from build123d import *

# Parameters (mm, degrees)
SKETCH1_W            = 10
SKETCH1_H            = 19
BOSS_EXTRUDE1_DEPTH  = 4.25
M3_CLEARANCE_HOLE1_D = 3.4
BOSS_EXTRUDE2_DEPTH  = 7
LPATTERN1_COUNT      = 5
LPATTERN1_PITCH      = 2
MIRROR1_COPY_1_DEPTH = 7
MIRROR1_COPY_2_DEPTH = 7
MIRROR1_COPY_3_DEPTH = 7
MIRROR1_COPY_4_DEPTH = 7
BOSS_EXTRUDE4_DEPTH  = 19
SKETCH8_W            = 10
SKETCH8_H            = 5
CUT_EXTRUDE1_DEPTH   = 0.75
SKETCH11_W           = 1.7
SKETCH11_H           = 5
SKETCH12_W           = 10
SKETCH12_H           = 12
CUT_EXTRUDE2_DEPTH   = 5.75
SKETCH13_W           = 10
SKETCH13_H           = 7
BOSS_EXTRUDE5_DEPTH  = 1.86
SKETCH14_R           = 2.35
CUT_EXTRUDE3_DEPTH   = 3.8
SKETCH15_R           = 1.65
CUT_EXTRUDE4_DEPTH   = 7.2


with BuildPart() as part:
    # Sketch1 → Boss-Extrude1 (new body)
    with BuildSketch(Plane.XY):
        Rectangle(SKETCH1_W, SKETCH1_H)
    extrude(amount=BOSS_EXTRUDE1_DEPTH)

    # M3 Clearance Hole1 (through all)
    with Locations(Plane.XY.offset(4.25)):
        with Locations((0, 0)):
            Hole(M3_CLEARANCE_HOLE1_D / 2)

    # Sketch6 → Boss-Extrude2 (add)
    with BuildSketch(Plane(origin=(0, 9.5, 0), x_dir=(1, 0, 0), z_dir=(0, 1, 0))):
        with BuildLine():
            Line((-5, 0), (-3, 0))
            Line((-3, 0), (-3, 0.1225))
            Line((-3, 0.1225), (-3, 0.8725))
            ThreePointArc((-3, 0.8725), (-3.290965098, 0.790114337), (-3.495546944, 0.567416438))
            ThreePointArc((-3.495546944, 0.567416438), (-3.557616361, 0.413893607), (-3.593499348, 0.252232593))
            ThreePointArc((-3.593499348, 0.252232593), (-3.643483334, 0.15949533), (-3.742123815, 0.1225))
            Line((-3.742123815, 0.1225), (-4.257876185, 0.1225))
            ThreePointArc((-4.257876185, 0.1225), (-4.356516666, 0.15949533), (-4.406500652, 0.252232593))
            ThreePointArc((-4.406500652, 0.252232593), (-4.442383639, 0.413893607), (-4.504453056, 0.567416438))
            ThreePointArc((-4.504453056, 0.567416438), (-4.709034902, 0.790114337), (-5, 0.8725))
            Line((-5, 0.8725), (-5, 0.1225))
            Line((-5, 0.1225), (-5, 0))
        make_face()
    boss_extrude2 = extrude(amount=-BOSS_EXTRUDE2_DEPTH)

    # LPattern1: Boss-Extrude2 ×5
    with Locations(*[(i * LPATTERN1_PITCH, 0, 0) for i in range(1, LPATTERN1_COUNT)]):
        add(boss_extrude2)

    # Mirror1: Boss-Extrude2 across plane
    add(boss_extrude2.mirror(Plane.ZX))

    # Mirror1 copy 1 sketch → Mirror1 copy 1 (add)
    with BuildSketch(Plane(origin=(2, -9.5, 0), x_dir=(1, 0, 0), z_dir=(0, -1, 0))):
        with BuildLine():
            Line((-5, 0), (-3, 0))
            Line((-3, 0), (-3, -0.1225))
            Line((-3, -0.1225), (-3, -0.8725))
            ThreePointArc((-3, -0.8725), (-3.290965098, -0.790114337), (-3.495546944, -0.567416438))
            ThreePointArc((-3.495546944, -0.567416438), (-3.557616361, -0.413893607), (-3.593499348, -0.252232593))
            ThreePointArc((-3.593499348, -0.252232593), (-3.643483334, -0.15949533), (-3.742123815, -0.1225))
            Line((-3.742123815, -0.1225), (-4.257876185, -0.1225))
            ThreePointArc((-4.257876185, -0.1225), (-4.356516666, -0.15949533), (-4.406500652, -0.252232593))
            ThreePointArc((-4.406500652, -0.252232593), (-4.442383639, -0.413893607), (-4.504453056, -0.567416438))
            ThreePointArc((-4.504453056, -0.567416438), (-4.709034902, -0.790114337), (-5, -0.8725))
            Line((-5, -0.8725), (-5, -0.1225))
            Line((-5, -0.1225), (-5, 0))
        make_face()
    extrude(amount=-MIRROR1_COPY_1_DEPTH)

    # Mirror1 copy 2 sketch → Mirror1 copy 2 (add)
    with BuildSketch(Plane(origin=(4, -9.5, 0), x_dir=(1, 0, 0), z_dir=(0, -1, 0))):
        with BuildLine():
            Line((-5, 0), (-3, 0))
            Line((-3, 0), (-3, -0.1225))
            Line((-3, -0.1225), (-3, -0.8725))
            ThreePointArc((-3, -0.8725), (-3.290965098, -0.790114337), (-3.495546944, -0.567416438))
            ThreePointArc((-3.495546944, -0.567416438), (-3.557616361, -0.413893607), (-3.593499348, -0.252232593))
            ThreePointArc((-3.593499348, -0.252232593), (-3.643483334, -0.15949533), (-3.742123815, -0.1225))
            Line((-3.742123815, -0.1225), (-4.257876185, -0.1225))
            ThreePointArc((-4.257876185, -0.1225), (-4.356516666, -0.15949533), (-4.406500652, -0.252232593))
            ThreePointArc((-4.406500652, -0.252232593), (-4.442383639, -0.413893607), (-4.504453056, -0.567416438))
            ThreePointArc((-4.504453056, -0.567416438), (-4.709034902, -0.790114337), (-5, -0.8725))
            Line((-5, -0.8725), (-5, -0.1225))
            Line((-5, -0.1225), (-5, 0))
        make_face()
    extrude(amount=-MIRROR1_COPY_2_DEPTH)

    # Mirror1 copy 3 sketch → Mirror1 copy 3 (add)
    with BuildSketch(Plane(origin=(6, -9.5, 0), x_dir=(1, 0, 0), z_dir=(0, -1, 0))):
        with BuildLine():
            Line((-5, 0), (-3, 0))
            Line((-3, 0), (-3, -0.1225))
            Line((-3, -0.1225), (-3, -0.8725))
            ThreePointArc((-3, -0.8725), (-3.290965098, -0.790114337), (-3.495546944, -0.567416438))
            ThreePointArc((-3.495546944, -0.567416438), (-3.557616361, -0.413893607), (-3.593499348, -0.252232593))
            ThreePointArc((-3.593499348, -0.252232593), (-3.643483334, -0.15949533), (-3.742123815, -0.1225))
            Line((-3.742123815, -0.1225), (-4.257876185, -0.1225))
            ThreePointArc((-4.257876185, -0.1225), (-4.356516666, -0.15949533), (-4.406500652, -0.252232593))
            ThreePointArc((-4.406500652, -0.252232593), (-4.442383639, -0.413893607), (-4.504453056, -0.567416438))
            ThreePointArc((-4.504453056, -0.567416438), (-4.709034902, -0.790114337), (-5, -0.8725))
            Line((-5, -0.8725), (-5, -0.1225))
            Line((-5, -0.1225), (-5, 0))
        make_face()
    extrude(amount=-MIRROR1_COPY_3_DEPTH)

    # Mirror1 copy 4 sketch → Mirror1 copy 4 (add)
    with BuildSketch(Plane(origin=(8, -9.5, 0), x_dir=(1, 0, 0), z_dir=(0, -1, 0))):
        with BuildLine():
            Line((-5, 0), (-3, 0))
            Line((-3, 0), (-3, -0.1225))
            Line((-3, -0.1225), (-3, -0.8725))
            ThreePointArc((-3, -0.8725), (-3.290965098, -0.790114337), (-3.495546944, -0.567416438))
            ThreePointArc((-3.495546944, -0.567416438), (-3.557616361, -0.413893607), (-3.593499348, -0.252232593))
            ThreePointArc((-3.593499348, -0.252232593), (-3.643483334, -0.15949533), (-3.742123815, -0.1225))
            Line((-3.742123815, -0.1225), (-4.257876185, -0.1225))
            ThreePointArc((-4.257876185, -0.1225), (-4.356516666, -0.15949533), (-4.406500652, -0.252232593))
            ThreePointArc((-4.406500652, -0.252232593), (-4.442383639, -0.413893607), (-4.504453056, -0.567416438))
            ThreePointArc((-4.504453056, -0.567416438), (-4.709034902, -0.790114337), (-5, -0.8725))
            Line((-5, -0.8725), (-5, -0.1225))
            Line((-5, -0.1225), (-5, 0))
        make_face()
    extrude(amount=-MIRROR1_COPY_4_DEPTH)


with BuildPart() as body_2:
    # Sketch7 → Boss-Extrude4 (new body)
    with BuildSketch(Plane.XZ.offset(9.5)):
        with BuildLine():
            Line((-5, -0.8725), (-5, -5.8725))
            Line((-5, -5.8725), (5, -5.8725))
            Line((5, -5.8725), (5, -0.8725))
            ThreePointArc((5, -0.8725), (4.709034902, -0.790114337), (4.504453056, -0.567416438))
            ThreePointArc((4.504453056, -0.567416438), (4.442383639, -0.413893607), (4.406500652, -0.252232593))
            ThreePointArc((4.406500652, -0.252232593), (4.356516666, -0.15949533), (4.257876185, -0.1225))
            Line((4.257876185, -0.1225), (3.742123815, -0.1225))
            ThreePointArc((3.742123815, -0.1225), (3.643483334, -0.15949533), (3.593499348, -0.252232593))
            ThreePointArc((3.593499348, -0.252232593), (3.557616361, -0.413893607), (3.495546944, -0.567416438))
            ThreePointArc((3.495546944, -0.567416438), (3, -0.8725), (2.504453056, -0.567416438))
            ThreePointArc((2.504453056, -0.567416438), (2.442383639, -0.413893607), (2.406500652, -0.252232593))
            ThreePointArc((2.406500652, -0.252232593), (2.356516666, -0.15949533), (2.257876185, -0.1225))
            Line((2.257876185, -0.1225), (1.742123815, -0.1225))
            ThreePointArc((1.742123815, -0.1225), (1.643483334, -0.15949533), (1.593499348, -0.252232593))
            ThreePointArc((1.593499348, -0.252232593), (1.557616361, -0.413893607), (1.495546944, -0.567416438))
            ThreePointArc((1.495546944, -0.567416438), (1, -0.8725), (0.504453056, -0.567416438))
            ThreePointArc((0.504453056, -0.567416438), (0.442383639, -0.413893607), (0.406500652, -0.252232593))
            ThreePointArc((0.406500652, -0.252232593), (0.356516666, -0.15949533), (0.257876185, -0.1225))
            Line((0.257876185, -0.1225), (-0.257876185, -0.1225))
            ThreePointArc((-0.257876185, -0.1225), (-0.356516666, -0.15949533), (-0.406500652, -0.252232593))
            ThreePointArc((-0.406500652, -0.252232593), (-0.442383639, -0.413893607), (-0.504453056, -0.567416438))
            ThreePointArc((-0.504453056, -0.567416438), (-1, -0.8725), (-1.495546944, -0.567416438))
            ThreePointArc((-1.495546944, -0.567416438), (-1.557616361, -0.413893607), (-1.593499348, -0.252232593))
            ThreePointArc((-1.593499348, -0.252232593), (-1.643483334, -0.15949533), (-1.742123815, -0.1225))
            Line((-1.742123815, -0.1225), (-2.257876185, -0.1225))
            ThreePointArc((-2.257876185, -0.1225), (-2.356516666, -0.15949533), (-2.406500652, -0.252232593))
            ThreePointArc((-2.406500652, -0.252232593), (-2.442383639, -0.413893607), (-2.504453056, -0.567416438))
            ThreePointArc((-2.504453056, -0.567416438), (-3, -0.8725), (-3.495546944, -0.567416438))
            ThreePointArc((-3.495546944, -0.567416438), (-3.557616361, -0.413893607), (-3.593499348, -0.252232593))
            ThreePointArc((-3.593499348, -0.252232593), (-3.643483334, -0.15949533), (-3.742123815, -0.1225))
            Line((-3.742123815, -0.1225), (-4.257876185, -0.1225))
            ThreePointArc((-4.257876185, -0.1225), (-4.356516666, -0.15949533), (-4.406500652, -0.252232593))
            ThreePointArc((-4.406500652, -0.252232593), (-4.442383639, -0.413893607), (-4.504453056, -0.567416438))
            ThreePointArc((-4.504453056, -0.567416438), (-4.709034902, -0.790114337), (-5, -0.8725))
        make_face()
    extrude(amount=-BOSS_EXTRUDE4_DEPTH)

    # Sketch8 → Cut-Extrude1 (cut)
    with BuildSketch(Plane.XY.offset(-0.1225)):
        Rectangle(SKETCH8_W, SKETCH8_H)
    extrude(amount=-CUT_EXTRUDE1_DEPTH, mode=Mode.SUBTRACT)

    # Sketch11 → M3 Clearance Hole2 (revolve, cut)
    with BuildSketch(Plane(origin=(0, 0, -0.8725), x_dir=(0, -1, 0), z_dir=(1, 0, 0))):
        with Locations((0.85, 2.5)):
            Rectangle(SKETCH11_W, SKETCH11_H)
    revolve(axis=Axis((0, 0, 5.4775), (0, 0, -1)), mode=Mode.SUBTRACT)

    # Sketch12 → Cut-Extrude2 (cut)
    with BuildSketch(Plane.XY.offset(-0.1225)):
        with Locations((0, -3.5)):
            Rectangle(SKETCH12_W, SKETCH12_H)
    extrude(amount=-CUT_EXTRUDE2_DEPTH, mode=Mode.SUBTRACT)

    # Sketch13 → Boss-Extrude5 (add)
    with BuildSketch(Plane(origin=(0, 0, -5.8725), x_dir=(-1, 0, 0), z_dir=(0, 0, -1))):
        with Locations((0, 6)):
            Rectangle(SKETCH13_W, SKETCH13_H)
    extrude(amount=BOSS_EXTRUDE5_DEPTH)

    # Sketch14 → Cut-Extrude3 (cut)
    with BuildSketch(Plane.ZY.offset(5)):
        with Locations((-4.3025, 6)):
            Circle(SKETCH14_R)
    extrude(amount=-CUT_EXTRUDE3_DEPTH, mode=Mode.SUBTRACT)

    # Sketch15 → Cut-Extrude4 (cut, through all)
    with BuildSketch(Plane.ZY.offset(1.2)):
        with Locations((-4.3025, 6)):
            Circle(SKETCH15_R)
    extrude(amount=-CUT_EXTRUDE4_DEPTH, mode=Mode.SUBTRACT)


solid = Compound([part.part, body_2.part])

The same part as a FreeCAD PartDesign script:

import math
import FreeCAD as App
import Part
import Sketcher
from FreeCAD import Vector


def add_polygon(sketch, points):
    """Adds a closed chain of lines whose ends are joined by coincident constraints."""
    first, n = sketch.GeometryCount, len(points)
    for a, b in zip(points, points[1:] + points[:1]):
        sketch.addGeometry(Part.LineSegment(App.Vector(*a, 0), App.Vector(*b, 0)), False)
    for i in range(n):
        sketch.addConstraint(Sketcher.Constraint("Coincident", first + i, 2, first + (i + 1) % n, 1))

doc = App.newDocument("Part")
body = doc.addObject("PartDesign::Body", "Body")

# Sketch on XY plane
sketch1 = body.newObject("Sketcher::SketchObject", "Sketch")
sketch1.AttachmentSupport = (doc.getObject("XY_Plane"), [""])
sketch1.MapMode = "FlatFace"
add_polygon(sketch1, [(-5, 10), (-5, -10), (5, -10), (5, 10)])  # lines 0-3
sketch1.addConstraint([
    Sketcher.Constraint("Vertical", 0),
    Sketcher.Constraint("Horizontal", 1),
    Sketcher.Constraint("Vertical", 2),
    Sketcher.Constraint("Horizontal", 3),
    Sketcher.Constraint("Symmetric", 0, 2, 2, 2, -1, 1),
    Sketcher.Constraint("DistanceX", 1, 1, 1, 2, 10.0),
    Sketcher.Constraint("DistanceY", 0, 2, 0, 1, 19.0),
])
pad1 = body.newObject("PartDesign::Pad", "Pad")
pad1.Profile = sketch1
pad1.Length = 4.25

# Sketch on XY plane
sketch2 = body.newObject("Sketcher::SketchObject", "Sketch001")
sketch2.AttachmentSupport = (doc.getObject("XY_Plane"), [""])
sketch2.MapMode = "FlatFace"
sketch2.AttachmentOffset = App.Placement(Vector(0, 0, 4.25), App.Rotation())
sketch2.addGeometry(Part.Circle(Vector(0, 0, 0), Vector(0, 0, 1), 1.7), False)
sketch2.addConstraint([
    Sketcher.Constraint("Coincident", 0, 3, -1, 1),
    Sketcher.Constraint("Diameter", 0, 3.4),
])
doc.recompute()
hole = body.newObject("PartDesign::Hole", "Hole")
hole.Profile = sketch2
hole.ThreadType = "None"
hole.Diameter = 3.4
hole.DepthType = "ThroughAll"

# Sketch on XZ plane
sketch3 = body.newObject("Sketcher::SketchObject", "Sketch002")
sketch3.AttachmentSupport = (doc.getObject("XZ_Plane"), [""])
sketch3.MapMode = "FlatFace"
sketch3.AttachmentOffset = App.Placement(Vector(0, 0, -9.5), App.Rotation())
sketch3.addGeometry([
    Part.LineSegment(Vector(-5, 0, 0), Vector(-3, 0, 0)),  # 0
    Part.LineSegment(Vector(-3, 0, 0), Vector(-3, -0.87, 0)),  # 1
    Part.ArcOfCircle(Part.Circle(Vector(-3, -0.32, 0), Vector(0, 0, 1), 0.56), math.radians(-153), math.radians(-90)),  # 2
    Part.ArcOfCircle(Part.Circle(Vector(-2.6, -0.12, 0), Vector(0, 0, 1), 1), math.radians(-172.23), math.radians(-153.24)),  # 3
    Part.ArcOfCircle(Part.Circle(Vector(-3.74, -0.27, 0), Vector(0, 0, 1), 0.15), math.radians(8), math.radians(90)),  # 4
    Part.LineSegment(Vector(-3.74, -0.12, 0), Vector(-4.26, -0.12, 0)),  # 5
    Part.ArcOfCircle(Part.Circle(Vector(-4.26, -0.27, 0), Vector(0, 0, 1), 0.15), math.radians(90), math.radians(172)),  # 6
    Part.ArcOfCircle(Part.Circle(Vector(-5.4, -0.12, 0), Vector(0, 0, 1), 1), math.radians(-26.76), math.radians(-7.77)),  # 7
    Part.ArcOfCircle(Part.Circle(Vector(-5, -0.32, 0), Vector(0, 0, 1), 0.56), math.radians(-90), math.radians(-27)),  # 8
    Part.LineSegment(Vector(-5, -0.87, 0), Vector(-5, 0, 0)),  # 9
], False)
sketch3.addConstraint([
    Sketcher.Constraint("Coincident", 0, 2, 1, 1),
    Sketcher.Constraint("Coincident", 1, 2, 2, 2),
    Sketcher.Constraint("Tangent", 2, 1, 3, 2),
    Sketcher.Constraint("Tangent", 3, 1, 4, 1),
    Sketcher.Constraint("Tangent", 4, 2, 5, 1),
    Sketcher.Constraint("Tangent", 5, 2, 6, 1),
    Sketcher.Constraint("Tangent", 6, 2, 7, 2),
    Sketcher.Constraint("Tangent", 7, 1, 8, 2),
    Sketcher.Constraint("Coincident", 8, 1, 9, 1),
    Sketcher.Constraint("Coincident", 9, 2, 0, 1),
    Sketcher.Constraint("Horizontal", 0),
    Sketcher.Constraint("Vertical", 1),
    Sketcher.Constraint("Horizontal", 5),
    Sketcher.Constraint("Vertical", 9),
    Sketcher.Constraint("Equal", 4, 6),
    Sketcher.Constraint("Equal", 3, 7),
    Sketcher.Constraint("Equal", 2, 8),
    Sketcher.Constraint("PointOnObject", 0, 2, -1),
    Sketcher.Constraint("Horizontal", 3, 3, 7, 3),
    Sketcher.Constraint("Horizontal", 2, 3, 8, 3),
    Sketcher.Constraint("Vertical", 2, 3, 0, 2),
    Sketcher.Constraint("Radius", 3, 1.0),
    Sketcher.Constraint("DistanceX", 0, 1, 0, 2, 2.0),
    Sketcher.Constraint("Radius", 4, 0.15),
    Sketcher.Constraint("DistanceX", 2, 3, -1, 1, 3.0),
    Sketcher.Constraint("DistanceX", 8, 3, -1, 1, 5.0),
    Sketcher.Constraint("Radius", 2, 0.555),
    Sketcher.Constraint("DistanceY", 1, 2, 4, 3, 0.6),
    Sketcher.Constraint("DistanceY", 1, 2, 1, 1, 0.8725),
    Sketcher.Constraint("DistanceX", 3, 1, -1, 1, 3.593499),
])
pad2 = body.newObject("PartDesign::Pad", "Pad001")
pad2.Profile = sketch3
pad2.Length = 7
doc.recompute()

linearpattern = body.newObject("PartDesign::LinearPattern", "LinearPattern")
linearpattern.Originals = [pad2]
linearpattern.Direction = (doc.getObject("X_Axis"), [""])
linearpattern.Mode = "offset"
linearpattern.Offset = 2
linearpattern.Occurrences = 5
body.Tip = linearpattern
doc.recompute()

mirrored = body.newObject("PartDesign::Mirrored", "Mirrored")
mirrored.Originals = [pad2]
mirrored.MirrorPlane = (doc.getObject("XZ_Plane"), [""])
body.Tip = mirrored

# Sketch on XZ plane
sketch4 = body.newObject("Sketcher::SketchObject", "Sketch003")
sketch4.AttachmentSupport = (doc.getObject("XZ_Plane"), [""])
sketch4.MapMode = "FlatFace"
sketch4.AttachmentOffset = App.Placement(Vector(0, 0, 9.5), App.Rotation())
sketch4.addGeometry([
    Part.LineSegment(Vector(-1, 0, 0), Vector(-3, 0, 0)),  # 0
    Part.LineSegment(Vector(-3, 0, 0), Vector(-3, -0.87, 0)),  # 1
    Part.ArcOfCircle(Part.Circle(Vector(-3, -0.32, 0), Vector(0, 0, 1), 0.56), math.radians(-90), math.radians(-27)),  # 2
    Part.ArcOfCircle(Part.Circle(Vector(-3.4, -0.12, 0), Vector(0, 0, 1), 1), math.radians(-26.76), math.radians(-7.77)),  # 3
    Part.ArcOfCircle(Part.Circle(Vector(-2.26, -0.27, 0), Vector(0, 0, 1), 0.15), math.radians(90), math.radians(172)),  # 4
    Part.LineSegment(Vector(-2.26, -0.12, 0), Vector(-1.74, -0.12, 0)),  # 5
    Part.ArcOfCircle(Part.Circle(Vector(-1.74, -0.27, 0), Vector(0, 0, 1), 0.15), math.radians(8), math.radians(90)),  # 6
    Part.ArcOfCircle(Part.Circle(Vector(-0.6, -0.12, 0), Vector(0, 0, 1), 1), math.radians(-172.23), math.radians(-153.24)),  # 7
    Part.ArcOfCircle(Part.Circle(Vector(-1, -0.32, 0), Vector(0, 0, 1), 0.56), math.radians(-153), math.radians(-90)),  # 8
    Part.LineSegment(Vector(-1, -0.87, 0), Vector(-1, 0, 0)),  # 9
], False)
sketch4.addConstraint([
    Sketcher.Constraint("Coincident", 0, 2, 1, 1),
    Sketcher.Constraint("Coincident", 1, 2, 2, 1),
    Sketcher.Constraint("Tangent", 2, 2, 3, 1),
    Sketcher.Constraint("Tangent", 3, 2, 4, 2),
    Sketcher.Constraint("Tangent", 4, 1, 5, 1),
    Sketcher.Constraint("Tangent", 5, 2, 6, 2),
    Sketcher.Constraint("Tangent", 6, 1, 7, 1),
    Sketcher.Constraint("Tangent", 7, 2, 8, 1),
    Sketcher.Constraint("Coincident", 8, 2, 9, 1),
    Sketcher.Constraint("Coincident", 9, 2, 0, 1),
    Sketcher.Constraint("Horizontal", 0),
    Sketcher.Constraint("Vertical", 1),
    Sketcher.Constraint("Horizontal", 5),
    Sketcher.Constraint("Vertical", 9),
    Sketcher.Constraint("Equal", 4, 6),
    Sketcher.Constraint("Equal", 3, 7),
    Sketcher.Constraint("Equal", 2, 8),
    Sketcher.Constraint("PointOnObject", 0, 2, -1),
    Sketcher.Constraint("Horizontal", 3, 3, 7, 3),
    Sketcher.Constraint("Horizontal", 2, 3, 8, 3),
    Sketcher.Constraint("Vertical", 2, 3, 0, 2),
    Sketcher.Constraint("Radius", 3, 1.0),
    Sketcher.Constraint("DistanceX", 0, 2, 0, 1, 2.0),
    Sketcher.Constraint("Radius", 4, 0.15),
    Sketcher.Constraint("DistanceX", 2, 3, -1, 1, 3.0),
    Sketcher.Constraint("DistanceX", 8, 3, -1, 1, 1.0),
    Sketcher.Constraint("Radius", 2, 0.555),
    Sketcher.Constraint("DistanceY", 1, 2, 4, 3, 0.6),
    Sketcher.Constraint("DistanceY", 1, 2, 1, 1, 0.8725),
    Sketcher.Constraint("DistanceX", 3, 2, -1, 1, 2.406501),
])
pad3 = body.newObject("PartDesign::Pad", "Pad002")
pad3.Profile = sketch4
pad3.Length = 7
pad3.Reversed = True

# Sketch on XZ plane
sketch5 = body.newObject("Sketcher::SketchObject", "Sketch004")
sketch5.AttachmentSupport = (doc.getObject("XZ_Plane"), [""])
sketch5.MapMode = "FlatFace"
sketch5.AttachmentOffset = App.Placement(Vector(0, 0, 9.5), App.Rotation())
sketch5.addGeometry([
    Part.LineSegment(Vector(1, 0, 0), Vector(-1, 0, 0)),  # 0
    Part.LineSegment(Vector(-1, 0, 0), Vector(-1, -0.87, 0)),  # 1
    Part.ArcOfCircle(Part.Circle(Vector(-1, -0.32, 0), Vector(0, 0, 1), 0.56), math.radians(-90), math.radians(-27)),  # 2
    Part.ArcOfCircle(Part.Circle(Vector(-1.4, -0.12, 0), Vector(0, 0, 1), 1), math.radians(-26.76), math.radians(-7.77)),  # 3
    Part.ArcOfCircle(Part.Circle(Vector(-0.26, -0.27, 0), Vector(0, 0, 1), 0.15), math.radians(90), math.radians(172)),  # 4
    Part.LineSegment(Vector(-0.26, -0.12, 0), Vector(0.26, -0.12, 0)),  # 5
    Part.ArcOfCircle(Part.Circle(Vector(0.26, -0.27, 0), Vector(0, 0, 1), 0.15), math.radians(8), math.radians(90)),  # 6
    Part.ArcOfCircle(Part.Circle(Vector(1.4, -0.12, 0), Vector(0, 0, 1), 1), math.radians(-172.23), math.radians(-153.24)),  # 7
    Part.ArcOfCircle(Part.Circle(Vector(1, -0.32, 0), Vector(0, 0, 1), 0.56), math.radians(-153), math.radians(-90)),  # 8
    Part.LineSegment(Vector(1, -0.87, 0), Vector(1, 0, 0)),  # 9
], False)
sketch5.addConstraint([
    Sketcher.Constraint("Coincident", 0, 2, 1, 1),
    Sketcher.Constraint("Coincident", 1, 2, 2, 1),
    Sketcher.Constraint("Tangent", 2, 2, 3, 1),
    Sketcher.Constraint("Tangent", 3, 2, 4, 2),
    Sketcher.Constraint("Tangent", 4, 1, 5, 1),
    Sketcher.Constraint("Tangent", 5, 2, 6, 2),
    Sketcher.Constraint("Tangent", 6, 1, 7, 1),
    Sketcher.Constraint("Tangent", 7, 2, 8, 1),
    Sketcher.Constraint("Coincident", 8, 2, 9, 1),
    Sketcher.Constraint("Coincident", 9, 2, 0, 1),
    Sketcher.Constraint("Horizontal", 0),
    Sketcher.Constraint("Vertical", 1),
    Sketcher.Constraint("Horizontal", 5),
    Sketcher.Constraint("Vertical", 9),
    Sketcher.Constraint("Equal", 4, 6),
    Sketcher.Constraint("Equal", 3, 7),
    Sketcher.Constraint("Equal", 2, 8),
    Sketcher.Constraint("Symmetric", 0, 2, 9, 2, -1, 1),
    Sketcher.Constraint("Symmetric", 3, 3, 7, 3, -2),
    Sketcher.Constraint("Horizontal", 2, 3, 8, 3),
    Sketcher.Constraint("Vertical", 2, 3, 0, 2),
    Sketcher.Constraint("Radius", 3, 1.0),
    Sketcher.Constraint("DistanceX", 0, 2, 0, 1, 2.0),
    Sketcher.Constraint("Radius", 4, 0.15),
    Sketcher.Constraint("Radius", 2, 0.555),
    Sketcher.Constraint("DistanceY", 1, 2, 4, 3, 0.6),
    Sketcher.Constraint("DistanceY", 1, 2, 1, 1, 0.8725),
    Sketcher.Constraint("DistanceX", 3, 2, -1, 1, 0.406501),
])
pad4 = body.newObject("PartDesign::Pad", "Pad003")
pad4.Profile = sketch5
pad4.Length = 7
pad4.Reversed = True

# Sketch on XZ plane
sketch6 = body.newObject("Sketcher::SketchObject", "Sketch005")
sketch6.AttachmentSupport = (doc.getObject("XZ_Plane"), [""])
sketch6.MapMode = "FlatFace"
sketch6.AttachmentOffset = App.Placement(Vector(0, 0, 9.5), App.Rotation())
sketch6.addGeometry([
    Part.LineSegment(Vector(3, 0, 0), Vector(1, 0, 0)),  # 0
    Part.LineSegment(Vector(1, 0, 0), Vector(1, -0.87, 0)),  # 1
    Part.ArcOfCircle(Part.Circle(Vector(1, -0.32, 0), Vector(0, 0, 1), 0.56), math.radians(-90), math.radians(-27)),  # 2
    Part.ArcOfCircle(Part.Circle(Vector(0.6, -0.12, 0), Vector(0, 0, 1), 1), math.radians(-26.76), math.radians(-7.77)),  # 3
    Part.ArcOfCircle(Part.Circle(Vector(1.74, -0.27, 0), Vector(0, 0, 1), 0.15), math.radians(90), math.radians(172)),  # 4
    Part.LineSegment(Vector(1.74, -0.12, 0), Vector(2.26, -0.12, 0)),  # 5
    Part.ArcOfCircle(Part.Circle(Vector(2.26, -0.27, 0), Vector(0, 0, 1), 0.15), math.radians(8), math.radians(90)),  # 6
    Part.ArcOfCircle(Part.Circle(Vector(3.4, -0.12, 0), Vector(0, 0, 1), 1), math.radians(-172.23), math.radians(-153.24)),  # 7
    Part.ArcOfCircle(Part.Circle(Vector(3, -0.32, 0), Vector(0, 0, 1), 0.56), math.radians(-153), math.radians(-90)),  # 8
    Part.LineSegment(Vector(3, -0.87, 0), Vector(3, 0, 0)),  # 9
], False)
sketch6.addConstraint([
    Sketcher.Constraint("Coincident", 0, 2, 1, 1),
    Sketcher.Constraint("Coincident", 1, 2, 2, 1),
    Sketcher.Constraint("Tangent", 2, 2, 3, 1),
    Sketcher.Constraint("Tangent", 3, 2, 4, 2),
    Sketcher.Constraint("Tangent", 4, 1, 5, 1),
    Sketcher.Constraint("Tangent", 5, 2, 6, 2),
    Sketcher.Constraint("Tangent", 6, 1, 7, 1),
    Sketcher.Constraint("Tangent", 7, 2, 8, 1),
    Sketcher.Constraint("Coincident", 8, 2, 9, 1),
    Sketcher.Constraint("Coincident", 9, 2, 0, 1),
    Sketcher.Constraint("Horizontal", 0),
    Sketcher.Constraint("Vertical", 1),
    Sketcher.Constraint("Horizontal", 5),
    Sketcher.Constraint("Vertical", 9),
    Sketcher.Constraint("Equal", 4, 6),
    Sketcher.Constraint("Equal", 3, 7),
    Sketcher.Constraint("Equal", 2, 8),
    Sketcher.Constraint("PointOnObject", 0, 2, -1),
    Sketcher.Constraint("Horizontal", 3, 3, 7, 3),
    Sketcher.Constraint("Horizontal", 2, 3, 8, 3),
    Sketcher.Constraint("Vertical", 2, 3, 0, 2),
    Sketcher.Constraint("Radius", 3, 1.0),
    Sketcher.Constraint("DistanceX", 0, 2, 0, 1, 2.0),
    Sketcher.Constraint("Radius", 4, 0.15),
    Sketcher.Constraint("DistanceX", -1, 1, 2, 3, 1.0),
    Sketcher.Constraint("DistanceX", -1, 1, 8, 3, 3.0),
    Sketcher.Constraint("Radius", 2, 0.555),
    Sketcher.Constraint("DistanceY", 1, 2, 4, 3, 0.6),
    Sketcher.Constraint("DistanceY", 1, 2, 1, 1, 0.8725),
    Sketcher.Constraint("DistanceX", -1, 1, 3, 2, 1.593499),
])
pad5 = body.newObject("PartDesign::Pad", "Pad004")
pad5.Profile = sketch6
pad5.Length = 7
pad5.Reversed = True

# Sketch on XZ plane
sketch7 = body.newObject("Sketcher::SketchObject", "Sketch006")
sketch7.AttachmentSupport = (doc.getObject("XZ_Plane"), [""])
sketch7.MapMode = "FlatFace"
sketch7.AttachmentOffset = App.Placement(Vector(0, 0, 9.5), App.Rotation())
sketch7.addGeometry([
    Part.LineSegment(Vector(5, 0, 0), Vector(3, 0, 0)),  # 0
    Part.LineSegment(Vector(3, 0, 0), Vector(3, -0.87, 0)),  # 1
    Part.ArcOfCircle(Part.Circle(Vector(3, -0.32, 0), Vector(0, 0, 1), 0.56), math.radians(-90), math.radians(-27)),  # 2
    Part.ArcOfCircle(Part.Circle(Vector(2.6, -0.12, 0), Vector(0, 0, 1), 1), math.radians(-26.76), math.radians(-7.77)),  # 3
    Part.ArcOfCircle(Part.Circle(Vector(3.74, -0.27, 0), Vector(0, 0, 1), 0.15), math.radians(90), math.radians(172)),  # 4
    Part.LineSegment(Vector(3.74, -0.12, 0), Vector(4.26, -0.12, 0)),  # 5
    Part.ArcOfCircle(Part.Circle(Vector(4.26, -0.27, 0), Vector(0, 0, 1), 0.15), math.radians(8), math.radians(90)),  # 6
    Part.ArcOfCircle(Part.Circle(Vector(5.4, -0.12, 0), Vector(0, 0, 1), 1), math.radians(-172.23), math.radians(-153.24)),  # 7
    Part.ArcOfCircle(Part.Circle(Vector(5, -0.32, 0), Vector(0, 0, 1), 0.56), math.radians(-153), math.radians(-90)),  # 8
    Part.LineSegment(Vector(5, -0.87, 0), Vector(5, 0, 0)),  # 9
], False)
sketch7.addConstraint([
    Sketcher.Constraint("Coincident", 0, 2, 1, 1),
    Sketcher.Constraint("Coincident", 1, 2, 2, 1),
    Sketcher.Constraint("Tangent", 2, 2, 3, 1),
    Sketcher.Constraint("Tangent", 3, 2, 4, 2),
    Sketcher.Constraint("Tangent", 4, 1, 5, 1),
    Sketcher.Constraint("Tangent", 5, 2, 6, 2),
    Sketcher.Constraint("Tangent", 6, 1, 7, 1),
    Sketcher.Constraint("Tangent", 7, 2, 8, 1),
    Sketcher.Constraint("Coincident", 8, 2, 9, 1),
    Sketcher.Constraint("Coincident", 9, 2, 0, 1),
    Sketcher.Constraint("Horizontal", 0),
    Sketcher.Constraint("Vertical", 1),
    Sketcher.Constraint("Horizontal", 5),
    Sketcher.Constraint("Vertical", 9),
    Sketcher.Constraint("Equal", 4, 6),
    Sketcher.Constraint("Equal", 3, 7),
    Sketcher.Constraint("Equal", 2, 8),
    Sketcher.Constraint("PointOnObject", 0, 2, -1),
    Sketcher.Constraint("Horizontal", 3, 3, 7, 3),
    Sketcher.Constraint("Horizontal", 2, 3, 8, 3),
    Sketcher.Constraint("Vertical", 2, 3, 0, 2),
    Sketcher.Constraint("Radius", 3, 1.0),
    Sketcher.Constraint("DistanceX", 0, 2, 0, 1, 2.0),
    Sketcher.Constraint("Radius", 4, 0.15),
    Sketcher.Constraint("DistanceX", -1, 1, 2, 3, 3.0),
    Sketcher.Constraint("DistanceX", -1, 1, 8, 3, 5.0),
    Sketcher.Constraint("Radius", 2, 0.555),
    Sketcher.Constraint("DistanceY", 1, 2, 4, 3, 0.6),
    Sketcher.Constraint("DistanceY", 1, 2, 1, 1, 0.8725),
    Sketcher.Constraint("DistanceX", -1, 1, 3, 2, 3.593499),
])
pad6 = body.newObject("PartDesign::Pad", "Pad005")
pad6.Profile = sketch7
pad6.Length = 7
pad6.Reversed = True
body2 = doc.addObject("PartDesign::Body", "Body001")

# Sketch on XZ plane
sketch8 = body2.newObject("Sketcher::SketchObject", "Sketch007")
sketch8.AttachmentSupport = (doc.getObject("XZ_Plane001"), [""])
sketch8.MapMode = "FlatFace"
sketch8.AttachmentOffset = App.Placement(Vector(0, 0, 9.5), App.Rotation())
sketch8.addGeometry([
    Part.LineSegment(Vector(-5, -0.87, 0), Vector(-5, -5.87, 0)),  # 0
    Part.LineSegment(Vector(-5, -5.87, 0), Vector(5, -5.87, 0)),  # 1
    Part.LineSegment(Vector(5, -5.87, 0), Vector(5, -0.87, 0)),  # 2
    Part.ArcOfCircle(Part.Circle(Vector(5, -0.32, 0), Vector(0, 0, 1), 0.56), math.radians(-153), math.radians(-90)),  # 3
    Part.ArcOfCircle(Part.Circle(Vector(5.4, -0.12, 0), Vector(0, 0, 1), 1), math.radians(-172.23), math.radians(-153.24)),  # 4
    Part.ArcOfCircle(Part.Circle(Vector(4.26, -0.27, 0), Vector(0, 0, 1), 0.15), math.radians(8), math.radians(90)),  # 5
    Part.LineSegment(Vector(4.26, -0.12, 0), Vector(3.74, -0.12, 0)),  # 6
    Part.ArcOfCircle(Part.Circle(Vector(3.74, -0.27, 0), Vector(0, 0, 1), 0.15), math.radians(90), math.radians(172)),  # 7
    Part.ArcOfCircle(Part.Circle(Vector(2.6, -0.12, 0), Vector(0, 0, 1), 1), math.radians(-26.76), math.radians(-7.77)),  # 8
    Part.ArcOfCircle(Part.Circle(Vector(3, -0.32, 0), Vector(0, 0, 1), 0.55), math.radians(-153), math.radians(-27)),  # 9
    Part.ArcOfCircle(Part.Circle(Vector(3.4, -0.12, 0), Vector(0, 0, 1), 1), math.radians(-172.23), math.radians(-153.24)),  # 10
    Part.ArcOfCircle(Part.Circle(Vector(2.26, -0.27, 0), Vector(0, 0, 1), 0.15), math.radians(8), math.radians(90)),  # 11
    Part.LineSegment(Vector(2.26, -0.12, 0), Vector(1.74, -0.12, 0)),  # 12
    Part.ArcOfCircle(Part.Circle(Vector(1.74, -0.27, 0), Vector(0, 0, 1), 0.15), math.radians(90), math.radians(172)),  # 13
    Part.ArcOfCircle(Part.Circle(Vector(0.6, -0.12, 0), Vector(0, 0, 1), 1), math.radians(-26.76), math.radians(-7.77)),  # 14
    Part.ArcOfCircle(Part.Circle(Vector(1, -0.32, 0), Vector(0, 0, 1), 0.55), math.radians(-153), math.radians(-27)),  # 15
    Part.ArcOfCircle(Part.Circle(Vector(1.4, -0.12, 0), Vector(0, 0, 1), 1), math.radians(-172.23), math.radians(-153.24)),  # 16
    Part.ArcOfCircle(Part.Circle(Vector(0.26, -0.27, 0), Vector(0, 0, 1), 0.15), math.radians(8), math.radians(90)),  # 17
    Part.LineSegment(Vector(0.26, -0.12, 0), Vector(-0.26, -0.12, 0)),  # 18
    Part.ArcOfCircle(Part.Circle(Vector(-0.26, -0.27, 0), Vector(0, 0, 1), 0.15), math.radians(90), math.radians(172)),  # 19
    Part.ArcOfCircle(Part.Circle(Vector(-1.4, -0.12, 0), Vector(0, 0, 1), 1), math.radians(-26.76), math.radians(-7.77)),  # 20
    Part.ArcOfCircle(Part.Circle(Vector(-1, -0.32, 0), Vector(0, 0, 1), 0.55), math.radians(-153), math.radians(-27)),  # 21
    Part.ArcOfCircle(Part.Circle(Vector(-0.6, -0.12, 0), Vector(0, 0, 1), 1), math.radians(-172.23), math.radians(-153.24)),  # 22
    Part.ArcOfCircle(Part.Circle(Vector(-1.74, -0.27, 0), Vector(0, 0, 1), 0.15), math.radians(8), math.radians(90)),  # 23
    Part.LineSegment(Vector(-1.74, -0.12, 0), Vector(-2.26, -0.12, 0)),  # 24
    Part.ArcOfCircle(Part.Circle(Vector(-2.26, -0.27, 0), Vector(0, 0, 1), 0.15), math.radians(90), math.radians(172)),  # 25
    Part.ArcOfCircle(Part.Circle(Vector(-3.4, -0.12, 0), Vector(0, 0, 1), 1), math.radians(-26.76), math.radians(-7.77)),  # 26
    Part.ArcOfCircle(Part.Circle(Vector(-3, -0.32, 0), Vector(0, 0, 1), 0.55), math.radians(-153), math.radians(-27)),  # 27
    Part.ArcOfCircle(Part.Circle(Vector(-2.6, -0.12, 0), Vector(0, 0, 1), 1), math.radians(-172.23), math.radians(-153.24)),  # 28
    Part.ArcOfCircle(Part.Circle(Vector(-3.74, -0.27, 0), Vector(0, 0, 1), 0.15), math.radians(8), math.radians(90)),  # 29
    Part.LineSegment(Vector(-3.74, -0.12, 0), Vector(-4.26, -0.12, 0)),  # 30
    Part.ArcOfCircle(Part.Circle(Vector(-4.26, -0.27, 0), Vector(0, 0, 1), 0.15), math.radians(90), math.radians(172)),  # 31
    Part.ArcOfCircle(Part.Circle(Vector(-5.4, -0.12, 0), Vector(0, 0, 1), 1), math.radians(-26.76), math.radians(-7.77)),  # 32
    Part.ArcOfCircle(Part.Circle(Vector(-5, -0.32, 0), Vector(0, 0, 1), 0.56), math.radians(-90), math.radians(-27)),  # 33
], False)
sketch8.addConstraint([
    Sketcher.Constraint("Coincident", 0, 2, 1, 1),
    Sketcher.Constraint("Coincident", 1, 2, 2, 1),
    Sketcher.Constraint("Coincident", 2, 2, 3, 2),
    Sketcher.Constraint("Tangent", 3, 1, 4, 2),
    Sketcher.Constraint("Tangent", 4, 1, 5, 1),
    Sketcher.Constraint("Tangent", 5, 2, 6, 1),
    Sketcher.Constraint("Tangent", 6, 2, 7, 1),
    Sketcher.Constraint("Tangent", 7, 2, 8, 2),
    Sketcher.Constraint("Tangent", 8, 1, 9, 2),
    Sketcher.Constraint("Tangent", 9, 1, 10, 2),
    Sketcher.Constraint("Tangent", 10, 1, 11, 1),
    Sketcher.Constraint("Tangent", 11, 2, 12, 1),
    Sketcher.Constraint("Tangent", 12, 2, 13, 1),
    Sketcher.Constraint("Tangent", 13, 2, 14, 2),
    Sketcher.Constraint("Tangent", 14, 1, 15, 2),
    Sketcher.Constraint("Tangent", 15, 1, 16, 2),
    Sketcher.Constraint("Tangent", 16, 1, 17, 1),
    Sketcher.Constraint("Tangent", 17, 2, 18, 1),
    Sketcher.Constraint("Tangent", 18, 2, 19, 1),
    Sketcher.Constraint("Tangent", 19, 2, 20, 2),
    Sketcher.Constraint("Tangent", 20, 1, 21, 2),
    Sketcher.Constraint("Tangent", 21, 1, 22, 2),
    Sketcher.Constraint("Tangent", 22, 1, 23, 1),
    Sketcher.Constraint("Tangent", 23, 2, 24, 1),
    Sketcher.Constraint("Tangent", 24, 2, 25, 1),
    Sketcher.Constraint("Tangent", 25, 2, 26, 2),
    Sketcher.Constraint("Tangent", 26, 1, 27, 2),
    Sketcher.Constraint("Tangent", 27, 1, 28, 2),
    Sketcher.Constraint("Tangent", 28, 1, 29, 1),
    Sketcher.Constraint("Tangent", 29, 2, 30, 1),
    Sketcher.Constraint("Tangent", 30, 2, 31, 1),
    Sketcher.Constraint("Tangent", 31, 2, 32, 2),
    Sketcher.Constraint("Tangent", 32, 1, 33, 2),
    Sketcher.Constraint("Coincident", 33, 1, 0, 1),
    Sketcher.Constraint("Vertical", 0),
    Sketcher.Constraint("Horizontal", 1),
    Sketcher.Constraint("Vertical", 2),
    Sketcher.Constraint("Horizontal", 6),
    Sketcher.Constraint("Horizontal", 12),
    Sketcher.Constraint("Horizontal", 18),
    Sketcher.Constraint("Horizontal", 24),
    Sketcher.Constraint("Horizontal", 30),
    Sketcher.Constraint("Equal", 5, 7),
    Sketcher.Constraint("Equal", 4, 8),
    Sketcher.Constraint("Equal", 3, 9),
    Sketcher.Constraint("Equal", 8, 10),
    Sketcher.Constraint("Equal", 7, 11),
    Sketcher.Constraint("Equal", 11, 13),
    Sketcher.Constraint("Equal", 10, 14),
    Sketcher.Constraint("Equal", 9, 15),
    Sketcher.Constraint("Equal", 14, 16),
    Sketcher.Constraint("Equal", 13, 17),
    Sketcher.Constraint("Equal", 17, 19),
    Sketcher.Constraint("Equal", 16, 20),
    Sketcher.Constraint("Equal", 15, 21),
    Sketcher.Constraint("Equal", 20, 22),
    Sketcher.Constraint("Equal", 19, 23),
    Sketcher.Constraint("Equal", 23, 25),
    Sketcher.Constraint("Equal", 22, 26),
    Sketcher.Constraint("Equal", 21, 27),
    Sketcher.Constraint("Equal", 26, 28),
    Sketcher.Constraint("Equal", 25, 29),
    Sketcher.Constraint("Equal", 29, 31),
    Sketcher.Constraint("Equal", 28, 32),
    Sketcher.Constraint("Equal", 27, 33),
    Sketcher.Constraint("Symmetric", 16, 3, 20, 3, -2),
    Sketcher.Constraint("Symmetric", 14, 3, 22, 3, -2),
    Sketcher.Constraint("Symmetric", 11, 3, 25, 3, -2),
    Sketcher.Constraint("Symmetric", 9, 3, 27, 3, -2),
    Sketcher.Constraint("Symmetric", 7, 3, 29, 3, -2),
    Sketcher.Constraint("Symmetric", 4, 3, 32, 3, -2),
    Sketcher.Constraint("Symmetric", 2, 2, 33, 1, -2),
    Sketcher.Constraint("Horizontal", 4, 3, 8, 3),
    Sketcher.Constraint("Horizontal", 3, 3, 9, 3),
    Sketcher.Constraint("Horizontal", 8, 3, 10, 3),
    Sketcher.Constraint("Horizontal", 7, 3, 11, 3),
    Sketcher.Constraint("Horizontal", 10, 3, 14, 3),
    Sketcher.Constraint("Horizontal", 9, 3, 15, 3),
    Sketcher.Constraint("Horizontal", 14, 3, 16, 3),
    Sketcher.Constraint("Horizontal", 13, 3, 17, 3),
    Sketcher.Constraint("Vertical", 33, 3, 0, 2),
    Sketcher.Constraint("Equal", 6, 12),
    Sketcher.Constraint("Equal", 12, 18),
    Sketcher.Constraint("Radius", 4, 1.0),
    Sketcher.Constraint("DistanceX", 1, 1, 1, 2, 10.0),
    Sketcher.Constraint("DistanceY", 0, 2, 0, 1, 5.0),
    Sketcher.Constraint("Radius", 5, 0.15),
    Sketcher.Constraint("Radius", 3, 0.555),
    Sketcher.Constraint("DistanceY", 0, 2, 31, 3, 5.6),
    Sketcher.Constraint("DistanceY", 3, 3, -1, 1, 0.3175),
    Sketcher.Constraint("DistanceX", -1, 1, 4, 1, 4.406501),
])
pad7 = body2.newObject("PartDesign::Pad", "Pad006")
pad7.Profile = sketch8
pad7.Length = 19
pad7.Reversed = True

# Sketch on XY plane
sketch9 = body2.newObject("Sketcher::SketchObject", "Sketch008")
sketch9.AttachmentSupport = (doc.getObject("XY_Plane001"), [""])
sketch9.MapMode = "FlatFace"
sketch9.AttachmentOffset = App.Placement(Vector(0, 0, -0.1225), App.Rotation())
add_polygon(sketch9, [(-5, 2), (-5, -2), (5, -2), (5, 2)])  # lines 0-3
sketch9.addConstraint([
    Sketcher.Constraint("Vertical", 0),
    Sketcher.Constraint("Horizontal", 1),
    Sketcher.Constraint("Vertical", 2),
    Sketcher.Constraint("Horizontal", 3),
    Sketcher.Constraint("Symmetric", 0, 2, 2, 2, -1, 1),
    Sketcher.Constraint("DistanceX", 1, 1, 1, 2, 10.0),
    Sketcher.Constraint("DistanceY", 0, 2, 0, 1, 5.0),
])
pocket1 = body2.newObject("PartDesign::Pocket", "Pocket")
pocket1.Profile = sketch9
pocket1.Length = 0.75

# Sketch on YZ plane
sketch10 = body2.newObject("Sketcher::SketchObject", "Sketch009")
sketch10.AttachmentSupport = (doc.getObject("YZ_Plane001"), [""])
sketch10.MapMode = "FlatFace"
add_polygon(sketch10, [(0, -5.9), (0, -0.9), (-1.7, -0.9), (-1.7, -5.9)])  # lines 0-3
sketch10.addConstraint([
    Sketcher.Constraint("Vertical", 0),
    Sketcher.Constraint("Horizontal", 1),
    Sketcher.Constraint("Vertical", 2),
    Sketcher.Constraint("Horizontal", 3),
    Sketcher.Constraint("PointOnObject", 0, 2, -2),
    Sketcher.Constraint("DistanceY", 0, 1, 0, 2, 5.0),
    Sketcher.Constraint("DistanceX", 1, 2, 1, 1, 1.7),
    Sketcher.Constraint("DistanceY", 0, 2, -1, 1, 0.8725),
])
groove = body2.newObject("PartDesign::Groove", "Groove")
groove.Profile = sketch10
groove.ReferenceAxis = (sketch10, ["V_Axis"])
groove.Angle = 360

# Sketch on XY plane
sketch11 = body2.newObject("Sketcher::SketchObject", "Sketch010")
sketch11.AttachmentSupport = (doc.getObject("XY_Plane001"), [""])
sketch11.MapMode = "FlatFace"
sketch11.AttachmentOffset = App.Placement(Vector(0, 0, -0.1225), App.Rotation())
add_polygon(sketch11, [(-5, 2), (-5, -10), (5, -10), (5, 2)])  # lines 0-3
sketch11.addConstraint([
    Sketcher.Constraint("Vertical", 0),
    Sketcher.Constraint("Horizontal", 1),
    Sketcher.Constraint("Vertical", 2),
    Sketcher.Constraint("Horizontal", 3),
    Sketcher.Constraint("DistanceX", 1, 1, 1, 2, 10.0),
    Sketcher.Constraint("DistanceY", 0, 2, 0, 1, 12.0),
    Sketcher.Constraint("DistanceX", 0, 2, -1, 1, 5.0),
    Sketcher.Constraint("DistanceY", 0, 2, -1, 1, 9.5),
])
pocket2 = body2.newObject("PartDesign::Pocket", "Pocket001")
pocket2.Profile = sketch11
pocket2.Length = 5.75

# Sketch on XY plane
sketch12 = body2.newObject("Sketcher::SketchObject", "Sketch011")
sketch12.AttachmentSupport = (doc.getObject("XY_Plane001"), [""])
sketch12.MapMode = "FlatFace"
sketch12.AttachmentOffset = App.Placement(Vector(0, 0, -5.8725), App.Rotation())
add_polygon(sketch12, [(5, 10), (5, 2), (-5, 2), (-5, 10)])  # lines 0-3
sketch12.addConstraint([
    Sketcher.Constraint("Vertical", 0),
    Sketcher.Constraint("Horizontal", 1),
    Sketcher.Constraint("Vertical", 2),
    Sketcher.Constraint("Horizontal", 3),
    Sketcher.Constraint("DistanceX", 1, 2, 1, 1, 10.0),
    Sketcher.Constraint("DistanceY", 0, 2, 0, 1, 7.0),
    Sketcher.Constraint("DistanceX", -1, 1, 0, 2, 5.0),
    Sketcher.Constraint("DistanceY", -1, 1, 0, 2, 2.5),
])
pad8 = body2.newObject("PartDesign::Pad", "Pad007")
pad8.Profile = sketch12
pad8.Length = 1.86
pad8.Reversed = True

# Sketch on YZ plane
sketch13 = body2.newObject("Sketcher::SketchObject", "Sketch012")
sketch13.AttachmentSupport = (doc.getObject("YZ_Plane001"), [""])
sketch13.MapMode = "FlatFace"
sketch13.AttachmentOffset = App.Placement(Vector(0, 0, -5), App.Rotation())
sketch13.addGeometry(Part.Circle(Vector(6, -4.3, 0), Vector(0, 0, 1), 2.4), False)
sketch13.addConstraint([
    Sketcher.Constraint("Diameter", 0, 4.7),
    Sketcher.Constraint("DistanceX", -1, 1, 0, 3, 6.0),
    Sketcher.Constraint("DistanceY", 0, 3, -1, 1, 4.3025),
])
pocket3 = body2.newObject("PartDesign::Pocket", "Pocket002")
pocket3.Profile = sketch13
pocket3.Length = 3.8
pocket3.Reversed = True

# Sketch on YZ plane
sketch14 = body2.newObject("Sketcher::SketchObject", "Sketch013")
sketch14.AttachmentSupport = (doc.getObject("YZ_Plane001"), [""])
sketch14.MapMode = "FlatFace"
sketch14.AttachmentOffset = App.Placement(Vector(0, 0, -1.2), App.Rotation())
sketch14.addGeometry(Part.Circle(Vector(6, -4.3, 0), Vector(0, 0, 1), 1.6), False)
sketch14.addConstraint([
    Sketcher.Constraint("Diameter", 0, 3.3),
    Sketcher.Constraint("DistanceX", -1, 1, 0, 3, 6.0),
    Sketcher.Constraint("DistanceY", 0, 3, -1, 1, 4.3025),
])
pocket4 = body2.newObject("PartDesign::Pocket", "Pocket003")
pocket4.Profile = sketch14
pocket4.Type = "ThroughAll"
pocket4.Reversed = True

doc.recompute()
